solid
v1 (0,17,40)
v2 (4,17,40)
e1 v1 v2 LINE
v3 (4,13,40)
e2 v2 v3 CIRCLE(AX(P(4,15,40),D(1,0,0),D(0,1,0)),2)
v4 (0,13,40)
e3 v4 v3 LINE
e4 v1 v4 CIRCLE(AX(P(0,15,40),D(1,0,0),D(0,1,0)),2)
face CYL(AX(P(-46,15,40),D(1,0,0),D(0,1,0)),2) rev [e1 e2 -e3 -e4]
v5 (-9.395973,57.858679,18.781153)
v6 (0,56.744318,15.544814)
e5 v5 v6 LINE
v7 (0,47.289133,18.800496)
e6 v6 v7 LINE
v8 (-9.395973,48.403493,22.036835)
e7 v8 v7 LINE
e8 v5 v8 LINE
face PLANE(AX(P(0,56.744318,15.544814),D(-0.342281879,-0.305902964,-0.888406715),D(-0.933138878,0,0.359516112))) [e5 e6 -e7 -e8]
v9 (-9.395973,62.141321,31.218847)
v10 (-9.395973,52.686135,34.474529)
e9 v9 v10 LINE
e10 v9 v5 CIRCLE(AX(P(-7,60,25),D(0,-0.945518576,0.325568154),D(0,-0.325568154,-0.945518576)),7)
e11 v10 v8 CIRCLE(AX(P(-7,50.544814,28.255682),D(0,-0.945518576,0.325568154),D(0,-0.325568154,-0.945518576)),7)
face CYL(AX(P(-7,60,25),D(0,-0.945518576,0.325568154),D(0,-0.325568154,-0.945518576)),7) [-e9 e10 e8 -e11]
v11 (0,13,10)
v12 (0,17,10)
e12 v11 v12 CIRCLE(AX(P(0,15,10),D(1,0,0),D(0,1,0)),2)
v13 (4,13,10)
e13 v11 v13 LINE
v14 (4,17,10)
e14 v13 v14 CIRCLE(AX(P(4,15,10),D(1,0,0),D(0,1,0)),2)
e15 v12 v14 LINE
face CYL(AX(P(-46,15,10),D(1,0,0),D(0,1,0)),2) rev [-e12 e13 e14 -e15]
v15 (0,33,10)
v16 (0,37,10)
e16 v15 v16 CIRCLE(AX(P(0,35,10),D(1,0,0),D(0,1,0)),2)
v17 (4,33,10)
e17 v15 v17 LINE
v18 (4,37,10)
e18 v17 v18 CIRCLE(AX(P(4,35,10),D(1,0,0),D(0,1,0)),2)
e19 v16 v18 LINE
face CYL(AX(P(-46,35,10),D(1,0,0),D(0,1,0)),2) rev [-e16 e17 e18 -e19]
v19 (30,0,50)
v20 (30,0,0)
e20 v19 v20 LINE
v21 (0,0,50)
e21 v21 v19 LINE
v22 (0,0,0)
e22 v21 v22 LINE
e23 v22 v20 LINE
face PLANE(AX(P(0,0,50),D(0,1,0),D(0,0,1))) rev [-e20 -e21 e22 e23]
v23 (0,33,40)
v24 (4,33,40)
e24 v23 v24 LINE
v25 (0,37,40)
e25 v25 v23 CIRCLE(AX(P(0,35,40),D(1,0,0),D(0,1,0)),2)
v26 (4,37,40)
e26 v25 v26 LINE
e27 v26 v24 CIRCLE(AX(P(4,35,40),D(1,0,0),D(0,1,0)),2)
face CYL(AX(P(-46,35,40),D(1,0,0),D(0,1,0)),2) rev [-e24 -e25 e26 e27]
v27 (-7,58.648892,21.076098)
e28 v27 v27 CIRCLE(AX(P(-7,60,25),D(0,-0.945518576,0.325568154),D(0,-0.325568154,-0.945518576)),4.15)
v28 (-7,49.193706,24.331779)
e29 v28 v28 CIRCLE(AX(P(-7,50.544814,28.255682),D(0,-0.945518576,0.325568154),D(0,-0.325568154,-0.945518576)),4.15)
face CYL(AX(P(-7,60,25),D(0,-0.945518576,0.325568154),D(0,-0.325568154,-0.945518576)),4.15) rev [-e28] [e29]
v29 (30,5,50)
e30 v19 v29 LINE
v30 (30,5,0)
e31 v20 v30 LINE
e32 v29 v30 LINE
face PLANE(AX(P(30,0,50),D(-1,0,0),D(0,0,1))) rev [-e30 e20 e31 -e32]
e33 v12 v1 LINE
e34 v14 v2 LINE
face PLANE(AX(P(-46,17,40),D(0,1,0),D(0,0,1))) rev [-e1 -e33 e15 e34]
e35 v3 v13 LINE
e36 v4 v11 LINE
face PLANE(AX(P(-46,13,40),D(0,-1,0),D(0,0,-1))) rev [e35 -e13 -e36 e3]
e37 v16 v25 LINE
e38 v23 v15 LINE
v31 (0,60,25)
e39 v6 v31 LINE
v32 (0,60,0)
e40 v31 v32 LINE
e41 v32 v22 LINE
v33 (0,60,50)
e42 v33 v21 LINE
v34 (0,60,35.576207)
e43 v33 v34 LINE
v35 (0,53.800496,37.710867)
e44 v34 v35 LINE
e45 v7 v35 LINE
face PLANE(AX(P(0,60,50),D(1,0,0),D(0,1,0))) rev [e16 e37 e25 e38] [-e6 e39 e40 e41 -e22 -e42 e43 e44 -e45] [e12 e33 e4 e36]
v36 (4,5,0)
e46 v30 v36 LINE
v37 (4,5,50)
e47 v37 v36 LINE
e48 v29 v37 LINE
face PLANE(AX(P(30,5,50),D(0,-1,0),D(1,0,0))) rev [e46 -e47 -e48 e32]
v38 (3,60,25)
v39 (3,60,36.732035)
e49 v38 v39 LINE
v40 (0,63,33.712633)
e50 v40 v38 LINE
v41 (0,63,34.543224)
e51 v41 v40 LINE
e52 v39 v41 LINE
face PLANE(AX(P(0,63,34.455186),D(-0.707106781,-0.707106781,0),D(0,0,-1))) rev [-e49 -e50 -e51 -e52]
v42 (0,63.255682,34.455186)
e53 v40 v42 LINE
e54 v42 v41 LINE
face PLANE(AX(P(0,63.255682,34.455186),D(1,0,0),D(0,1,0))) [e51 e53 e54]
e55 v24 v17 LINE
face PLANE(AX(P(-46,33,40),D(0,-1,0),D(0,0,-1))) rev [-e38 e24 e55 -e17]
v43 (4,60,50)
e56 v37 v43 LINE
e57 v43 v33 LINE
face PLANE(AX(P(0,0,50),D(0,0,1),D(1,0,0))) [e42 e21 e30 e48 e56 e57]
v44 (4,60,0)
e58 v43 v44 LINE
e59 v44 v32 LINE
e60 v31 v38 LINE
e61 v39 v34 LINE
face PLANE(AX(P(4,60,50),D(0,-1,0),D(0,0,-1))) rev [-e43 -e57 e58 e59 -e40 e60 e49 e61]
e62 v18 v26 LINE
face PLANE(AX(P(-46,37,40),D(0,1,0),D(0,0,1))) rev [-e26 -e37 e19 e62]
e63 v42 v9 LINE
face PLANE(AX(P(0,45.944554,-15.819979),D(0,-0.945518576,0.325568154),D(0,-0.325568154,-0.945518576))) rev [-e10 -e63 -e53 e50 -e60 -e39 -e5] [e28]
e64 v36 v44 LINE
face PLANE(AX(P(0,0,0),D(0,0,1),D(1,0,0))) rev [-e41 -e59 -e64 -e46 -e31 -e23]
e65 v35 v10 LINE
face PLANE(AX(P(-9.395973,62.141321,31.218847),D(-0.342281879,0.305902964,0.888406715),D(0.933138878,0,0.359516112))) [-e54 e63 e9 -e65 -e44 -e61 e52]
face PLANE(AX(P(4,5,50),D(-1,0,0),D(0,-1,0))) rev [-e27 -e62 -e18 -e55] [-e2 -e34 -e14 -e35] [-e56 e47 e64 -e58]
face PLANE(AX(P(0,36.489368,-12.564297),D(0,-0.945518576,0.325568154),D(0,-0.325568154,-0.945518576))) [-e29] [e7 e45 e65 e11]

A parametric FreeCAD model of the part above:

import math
import FreeCAD as App
import Part
import Sketcher

V = App.Vector
Q = App.Units.Quantity


def edges_at(feature, points):
    """Names of the edges that pass closest to the given points."""
    edges = feature.Shape.Edges
    near = lambda p: min(range(len(edges)), key=lambda i: edges[i].distToShape(Part.Vertex(*p))[0])
    return sorted({f"Edge{near(p) + 1}" for p in points})

doc = App.newDocument("Part")
params = doc.addObject("Spreadsheet::Sheet", "Params")
for row, (alias, value) in enumerate([
    ("sketch1_width", "30 mm"),
    ("sketch1_width2", "26 mm"),
    ("sketch1_height", "5 mm"),
    ("sketch1_height2", "55 mm"),
    ("pad1_length", "50 mm"),
    ("sketch2_radius", "2 mm"),
    ("sketch2_height", "30 mm"),
    ("pocket1_length", "50 mm"),
    ("sketch3_radius", "7 mm"),
    ("sketch3_diameter", "8.3 mm"),
    ("sketch3_length", "10 mm"),
    ("sketch3_length2", "20 mm"),
    ("pad2_length", "10 mm"),
    ("chamfer_size", "3 mm"),
], start=1):
    params.set(f"A{row}", alias)
    params.set(f"B{row}", "=" + value)
    params.setAlias(f"B{row}", alias)

body = doc.addObject("PartDesign::Body", "Body")

# Sketch on XY plane
sketch1 = doc.addObject("Sketcher::SketchObject", "Sketch")
body.addObject(sketch1)
sketch1.AttachmentSupport = (doc.XY_Plane, [""])
sketch1.MapMode = "FlatFace"
sketch1.addGeometry([
    Part.LineSegment(V(0, 0, 0), V(30, 0, 0)),  # 0
    Part.LineSegment(V(30, 0, 0), V(30, 5, 0)),  # 1
    Part.LineSegment(V(30, 5, 0), V(4, 5, 0)),  # 2
    Part.LineSegment(V(4, 5, 0), V(4, 60, 0)),  # 3
    Part.LineSegment(V(4, 60, 0), V(0, 60, 0)),  # 4
    Part.LineSegment(V(0, 60, 0), V(0, 0, 0)),  # 5
], False)
sketch1.addConstraint([
    Sketcher.Constraint("Coincident", 0, 2, 1, 1),
    Sketcher.Constraint("Coincident", 1, 2, 2, 1),
    Sketcher.Constraint("Coincident", 2, 2, 3, 1),
    Sketcher.Constraint("Coincident", 3, 2, 4, 1),
    Sketcher.Constraint("Coincident", 4, 2, 5, 1),
    Sketcher.Constraint("Coincident", 5, 2, 0, 1),
    Sketcher.Constraint("Horizontal", 0),
    Sketcher.Constraint("Vertical", 1),
    Sketcher.Constraint("Horizontal", 2),
    Sketcher.Constraint("Vertical", 3),
    Sketcher.Constraint("Horizontal", 4),
    Sketcher.Constraint("Vertical", 5),
    Sketcher.Constraint("Coincident", 5, 2, -1, 1),
    Sketcher.Constraint("DistanceX", 0, 1, 0, 2, Q("30 mm")),
    Sketcher.Constraint("DistanceX", 2, 2, 2, 1, Q("26 mm")),
    Sketcher.Constraint("DistanceY", 1, 1, 1, 2, Q("5 mm")),
    Sketcher.Constraint("DistanceY", 3, 1, 3, 2, Q("55 mm")),
])
sketch1.setExpression("Constraints[13]", "Params.sketch1_width")
sketch1.setExpression("Constraints[14]", "Params.sketch1_width2")
sketch1.setExpression("Constraints[15]", "Params.sketch1_height")
sketch1.setExpression("Constraints[16]", "Params.sketch1_height2")
pad1 = doc.addObject("PartDesign::Pad", "Pad")
body.addObject(pad1)
pad1.Profile = sketch1
pad1.setExpression("Length", "Params.pad1_length")

# Sketch on YZ plane
sketch2 = doc.addObject("Sketcher::SketchObject", "Sketch001")
body.addObject(sketch2)
sketch2.AttachmentSupport = (doc.YZ_Plane, [""])
sketch2.MapMode = "FlatFace"
sketch2.AttachmentOffset = App.Placement(V(0, 0, 4), App.Rotation())
sketch2.addGeometry([
    Part.LineSegment(V(37, 10, 0), V(37, 40, 0)),  # 0
    Part.ArcOfCircle(Part.Circle(V(35, 40, 0), V(0, 0, 1), 2), math.radians(0), math.radians(180)),  # 1
    Part.LineSegment(V(33, 40, 0), V(33, 10, 0)),  # 2
    Part.ArcOfCircle(Part.Circle(V(35, 10, 0), V(0, 0, 1), 2), math.radians(180), math.radians(360)),  # 3
    Part.LineSegment(V(17, 10, 0), V(17, 40, 0)),  # 4
    Part.ArcOfCircle(Part.Circle(V(15, 40, 0), V(0, 0, 1), 2), math.radians(0), math.radians(180)),  # 5
    Part.LineSegment(V(13, 40, 0), V(13, 10, 0)),  # 6
    Part.ArcOfCircle(Part.Circle(V(15, 10, 0), V(0, 0, 1), 2), math.radians(180), math.radians(360)),  # 7
], False)
sketch2.addConstraint([
    Sketcher.Constraint("Tangent", 0, 2, 1, 1),
    Sketcher.Constraint("Tangent", 1, 2, 2, 1),
    Sketcher.Constraint("Tangent", 2, 2, 3, 1),
    Sketcher.Constraint("Tangent", 3, 2, 0, 1),
    Sketcher.Constraint("Tangent", 4, 2, 5, 1),
    Sketcher.Constraint("Tangent", 5, 2, 6, 1),
    Sketcher.Constraint("Tangent", 6, 2, 7, 1),
    Sketcher.Constraint("Tangent", 7, 2, 4, 1),
    Sketcher.Constraint("Vertical", 0),
    Sketcher.Constraint("Vertical", 2),
    Sketcher.Constraint("Vertical", 4),
    Sketcher.Constraint("Vertical", 6),
    Sketcher.Constraint("Equal", 3, 5),
    Sketcher.Constraint("Horizontal", 1, 3, 5, 3),
    Sketcher.Constraint("Horizontal", 3, 3, 7, 3),
    Sketcher.Constraint("Radius", 1, Q("2 mm")),
    Sketcher.Constraint("DistanceY", 0, 1, 0, 2, Q("30 mm")),
    Sketcher.Constraint("DistanceX", -1, 1, 1, 3, Q("35 mm")),
    Sketcher.Constraint("DistanceY", -1, 1, 1, 3, Q("40 mm")),
    Sketcher.Constraint("DistanceX", -1, 1, 5, 3, Q("15 mm")),
])
sketch2.setExpression("Constraints[15]", "Params.sketch2_radius")
sketch2.setExpression("Constraints[16]", "Params.sketch2_height")
pocket1 = doc.addObject("PartDesign::Pocket", "Pocket")
body.addObject(pocket1)
pocket1.Profile = sketch2
pocket1.setExpression("Length", "Params.pocket1_length")

# Sketch on an angled plane
sketch3 = doc.addObject("Sketcher::SketchObject", "Sketch002")
body.addObject(sketch3)
sketch3.Placement = App.Placement(V(-9.395973, 62.141321, 31.218847), App.Rotation(V(0.493101438, -0.283235121, -0.822574518), V(0.869971822, 0.160538125, 0.466236569), V(0, -0.945518576, 0.325568154), "ZXY"))
sketch3.addGeometry([
    Part.LineSegment(V(1.7, 9.9, 0), V(0, 0, 0)),  # 0
    Part.ArcOfCircle(Part.Circle(V(6.9, -1.2, 0), V(0, 0, 1), 7), math.radians(170), math.radians(310)),  # 1
    Part.LineSegment(V(11.4, -6.5, 0), V(19.1, 0, 0)),  # 2
    Part.LineSegment(V(19.1, 0, 0), V(1.7, 9.9, 0)),  # 3
    Part.Circle(V(6.9, -1.2, 0), V(0, 0, 1), 4.2),  # 4
], False)
sketch3.addConstraint([
    Sketcher.Constraint("Tangent", 0, 2, 1, 1),
    Sketcher.Constraint("Tangent", 1, 2, 2, 1),
    Sketcher.Constraint("Coincident", 2, 2, 3, 1),
    Sketcher.Constraint("Coincident", 3, 2, 0, 1),
    Sketcher.Constraint("Coincident", 0, 2, -1, 1),
    Sketcher.Constraint("Coincident", 4, 3, 1, 3),
    Sketcher.Constraint("PointOnObject", 2, 2, -1),
    Sketcher.Constraint("Equal", 0, 2),
    Sketcher.Constraint("Radius", 1, Q("7 mm")),
    Sketcher.Constraint("Diameter", 4, Q("8.3 mm")),
    Sketcher.Constraint("Distance", 0, Q("10 mm")),
    Sketcher.Constraint("Distance", 3, Q("20 mm")),
])
sketch3.setExpression("Constraints[8]", "Params.sketch3_radius")
sketch3.setExpression("Constraints[9]", "Params.sketch3_diameter")
sketch3.setExpression("Constraints[10]", "Params.sketch3_length")
sketch3.setExpression("Constraints[11]", "Params.sketch3_length2")
pad2 = doc.addObject("PartDesign::Pad", "Pad001")
body.addObject(pad2)
pad2.Profile = sketch3
pad2.setExpression("Length", "Params.pad2_length")
doc.recompute()

chamfer = doc.addObject("PartDesign::Chamfer", "Chamfer")
body.addObject(chamfer)
chamfer.Base = (pad2, edges_at(pad2, [(0, 60, 30.288)]))
chamfer.setExpression("Size", "Params.chamfer_size")

doc.recompute()
